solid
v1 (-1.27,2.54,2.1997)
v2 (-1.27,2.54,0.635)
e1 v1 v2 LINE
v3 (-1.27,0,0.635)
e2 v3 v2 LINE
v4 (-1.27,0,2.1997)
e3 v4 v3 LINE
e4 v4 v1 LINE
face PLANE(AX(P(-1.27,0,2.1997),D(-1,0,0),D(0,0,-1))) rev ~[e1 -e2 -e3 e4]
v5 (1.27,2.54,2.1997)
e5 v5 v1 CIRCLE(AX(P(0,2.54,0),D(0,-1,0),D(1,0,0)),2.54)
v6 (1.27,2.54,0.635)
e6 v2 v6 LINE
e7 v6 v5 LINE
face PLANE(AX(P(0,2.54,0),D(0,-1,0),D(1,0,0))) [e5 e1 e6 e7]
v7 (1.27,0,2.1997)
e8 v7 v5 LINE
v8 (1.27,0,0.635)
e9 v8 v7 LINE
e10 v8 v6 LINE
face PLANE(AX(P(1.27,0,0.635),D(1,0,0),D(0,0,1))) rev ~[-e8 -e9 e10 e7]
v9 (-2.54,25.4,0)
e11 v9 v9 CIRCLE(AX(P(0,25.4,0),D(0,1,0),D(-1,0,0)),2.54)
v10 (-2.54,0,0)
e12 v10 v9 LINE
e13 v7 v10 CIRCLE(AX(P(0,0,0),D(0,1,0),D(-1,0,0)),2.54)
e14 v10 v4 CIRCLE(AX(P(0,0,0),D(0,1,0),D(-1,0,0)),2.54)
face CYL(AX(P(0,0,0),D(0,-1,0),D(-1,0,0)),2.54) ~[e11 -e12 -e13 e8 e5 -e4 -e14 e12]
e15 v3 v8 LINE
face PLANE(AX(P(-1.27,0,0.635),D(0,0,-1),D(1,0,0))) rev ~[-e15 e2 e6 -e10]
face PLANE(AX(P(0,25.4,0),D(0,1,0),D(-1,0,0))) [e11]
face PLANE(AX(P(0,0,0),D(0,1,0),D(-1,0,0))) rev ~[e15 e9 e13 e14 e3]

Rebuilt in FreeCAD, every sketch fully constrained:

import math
import FreeCAD as App
import Part
import Sketcher
Q = App.Units.Quantity

doc = App.newDocument("Part")
body = doc.addObject("PartDesign::Body", "Body")

# Sketch on XZ plane
sketch1 = body.newObject("Sketcher::SketchObject", "Sketch")
sketch1.AttachmentSupport = (doc.getObject("XZ_Plane"), [""])
sketch1.MapMode = "FlatFace"
sketch1.addGeometry(Part.Circle(App.Vector(0, 0, 0), App.Vector(0, 0, 1), 2.5), False)
sketch1.addConstraint(Sketcher.Constraint("Coincident", 0, 3, -1, 1))
sketch1.addConstraint(Sketcher.Constraint("Diameter", 0, Q("0.2 in")))
pad1 = body.newObject("PartDesign::Pad", "Pad")
pad1.Profile = sketch1
pad1.Length = Q("1 in")
pad1.Reversed = True

# Sketch on XZ plane
sketch2 = body.newObject("Sketcher::SketchObject", "Sketch001")
sketch2.AttachmentSupport = (doc.getObject("XZ_Plane"), [""])
sketch2.MapMode = "FlatFace"
sketch2.addGeometry(Part.LineSegment(App.Vector(1.3, 0.6, 0), App.Vector(1.3, 2.2, 0)), False)
sketch2.addGeometry(Part.ArcOfCircle(Part.Circle(App.Vector(0, 0, 0), App.Vector(0, 0, 1), 2.5), math.radians(60), math.radians(120)), False)
sketch2.addGeometry(Part.LineSegment(App.Vector(-1.3, 2.2, 0), App.Vector(-1.3, 0.6, 0)), False)
sketch2.addGeometry(Part.LineSegment(App.Vector(-1.3, 0.6, 0), App.Vector(1.3, 0.6, 0)), False)
sketch2.addConstraint(Sketcher.Constraint("Coincident", 0, 2, 1, 1))
sketch2.addConstraint(Sketcher.Constraint("Coincident", 1, 2, 2, 1))
sketch2.addConstraint(Sketcher.Constraint("Coincident", 2, 2, 3, 1))
sketch2.addConstraint(Sketcher.Constraint("Coincident", 3, 2, 0, 1))
sketch2.addConstraint(Sketcher.Constraint("Vertical", 0))
sketch2.addConstraint(Sketcher.Constraint("Vertical", 2))
sketch2.addConstraint(Sketcher.Constraint("Horizontal", 3))
sketch2.addConstraint(Sketcher.Constraint("Coincident", 1, 3, -1, 1))
sketch2.addConstraint(Sketcher.Constraint("Horizontal", 0, 2, 1, 2))
sketch2.addConstraint(Sketcher.Constraint("Radius", 1, Q("0.1 in")))
sketch2.addConstraint(Sketcher.Constraint("DistanceX", -1, 1, 0, 2, Q("0.05 in")))
sketch2.addConstraint(Sketcher.Constraint("DistanceY", -1, 1, 2, 2, Q("0.025 in")))
pocket1 = body.newObject("PartDesign::Pocket", "Pocket")
pocket1.Profile = sketch2
pocket1.Length = Q("0.1 in")

doc.recompute()
